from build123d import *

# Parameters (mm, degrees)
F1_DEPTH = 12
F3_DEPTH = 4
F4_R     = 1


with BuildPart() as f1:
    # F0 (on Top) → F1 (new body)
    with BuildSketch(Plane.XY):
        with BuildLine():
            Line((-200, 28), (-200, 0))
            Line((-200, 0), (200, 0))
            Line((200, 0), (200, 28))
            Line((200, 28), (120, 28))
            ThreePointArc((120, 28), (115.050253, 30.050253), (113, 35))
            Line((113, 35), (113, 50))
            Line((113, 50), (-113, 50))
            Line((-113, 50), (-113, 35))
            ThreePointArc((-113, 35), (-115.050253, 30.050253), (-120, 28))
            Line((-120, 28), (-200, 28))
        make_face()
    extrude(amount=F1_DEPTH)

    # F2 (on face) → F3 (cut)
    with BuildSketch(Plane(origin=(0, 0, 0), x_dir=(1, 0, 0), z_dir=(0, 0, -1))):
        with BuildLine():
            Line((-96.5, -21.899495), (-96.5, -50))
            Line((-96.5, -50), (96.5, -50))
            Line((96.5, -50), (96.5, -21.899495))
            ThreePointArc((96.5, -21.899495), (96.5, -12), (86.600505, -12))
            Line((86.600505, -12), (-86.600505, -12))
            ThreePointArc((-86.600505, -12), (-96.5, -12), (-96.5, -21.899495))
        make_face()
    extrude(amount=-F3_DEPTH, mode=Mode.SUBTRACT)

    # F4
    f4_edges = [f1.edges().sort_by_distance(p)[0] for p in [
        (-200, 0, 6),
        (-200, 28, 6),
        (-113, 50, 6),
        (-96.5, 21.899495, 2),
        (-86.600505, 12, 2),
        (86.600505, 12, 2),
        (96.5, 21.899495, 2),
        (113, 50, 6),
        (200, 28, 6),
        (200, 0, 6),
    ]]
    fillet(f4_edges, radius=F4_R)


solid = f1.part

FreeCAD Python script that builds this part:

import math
import FreeCAD as App
import Part
import Sketcher
Q = App.Units.Quantity


def edges_at(feature, points):
    """Names of the edges that pass closest to the given points."""
    edges = feature.Shape.Edges
    near = lambda p: min(range(len(edges)), key=lambda i: edges[i].distToShape(Part.Vertex(*p))[0])
    return sorted({f"Edge{near(p) + 1}" for p in points})

doc = App.newDocument("Part")
body = doc.addObject("PartDesign::Body", "Body")

# Sketch on XY plane
sketch1 = doc.addObject("Sketcher::SketchObject", "Sketch")
body.addObject(sketch1)
sketch1.AttachmentSupport = (doc.XY_Plane, [""])
sketch1.MapMode = "FlatFace"
sketch1.addGeometry([
    Part.LineSegment(App.Vector(-200, 28, 0), App.Vector(-200, 0, 0)),  # 0
    Part.LineSegment(App.Vector(-200, 0, 0), App.Vector(200, 0, 0)),  # 1
    Part.LineSegment(App.Vector(200, 0, 0), App.Vector(200, 28, 0)),  # 2
    Part.LineSegment(App.Vector(200, 28, 0), App.Vector(120, 28, 0)),  # 3
    Part.ArcOfCircle(Part.Circle(App.Vector(120.000002, 35.000002, 0), App.Vector(0, 0, 1), 7.000002), math.radians(-179.999987), math.radians(-90.000013)),  # 4
    Part.LineSegment(App.Vector(113, 35, 0), App.Vector(113, 50, 0)),  # 5
    Part.LineSegment(App.Vector(113, 50, 0), App.Vector(-113, 50, 0)),  # 6
    Part.LineSegment(App.Vector(-113, 50, 0), App.Vector(-113, 35, 0)),  # 7
    Part.ArcOfCircle(Part.Circle(App.Vector(-120.000002, 35.000002, 0), App.Vector(0, 0, 1), 7.000002), math.radians(-89.999987), math.radians(-0.000013)),  # 8
    Part.LineSegment(App.Vector(-120, 28, 0), App.Vector(-200, 28, 0)),  # 9
], False)
sketch1.addConstraint([
    Sketcher.Constraint("Coincident", 0, 2, 1, 1),
    Sketcher.Constraint("Coincident", 1, 2, 2, 1),
    Sketcher.Constraint("Coincident", 2, 2, 3, 1),
    Sketcher.Constraint("Tangent", 3, 2, 4, 2),
    Sketcher.Constraint("Tangent", 4, 1, 5, 1),
    Sketcher.Constraint("Coincident", 5, 2, 6, 1),
    Sketcher.Constraint("Coincident", 6, 2, 7, 1),
    Sketcher.Constraint("Tangent", 7, 2, 8, 2),
    Sketcher.Constraint("Tangent", 8, 1, 9, 1),
    Sketcher.Constraint("Coincident", 9, 2, 0, 1),
    Sketcher.Constraint("Vertical", 0),
    Sketcher.Constraint("Horizontal", 1),
    Sketcher.Constraint("Vertical", 2),
    Sketcher.Constraint("Horizontal", 3),
    Sketcher.Constraint("Vertical", 5),
    Sketcher.Constraint("Horizontal", 6),
    Sketcher.Constraint("Vertical", 7),
    Sketcher.Constraint("Horizontal", 9),
    Sketcher.Constraint("Equal", 4, 8),
    Sketcher.Constraint("Symmetric", 0, 2, 1, 2, -1, 1),
    Sketcher.Constraint("Symmetric", 4, 3, 8, 3, -2),
    Sketcher.Constraint("Radius", 4, Q("7.000002 mm")),
    Sketcher.Constraint("DistanceX", 1, 1, 1, 2, Q("400 mm")),
    Sketcher.Constraint("DistanceX", 3, 2, 3, 1, Q("80 mm")),
    Sketcher.Constraint("DistanceY", 0, 2, 0, 1, Q("28 mm")),
    Sketcher.Constraint("DistanceY", 5, 1, 5, 2, Q("15 mm")),
])
pad1 = doc.addObject("PartDesign::Pad", "Pad")
body.addObject(pad1)
pad1.Profile = sketch1
pad1.Length = 12

# Sketch on XY plane
sketch2 = doc.addObject("Sketcher::SketchObject", "Sketch001")
body.addObject(sketch2)
sketch2.AttachmentSupport = (doc.XY_Plane, [""])
sketch2.MapMode = "FlatFace"
sketch2.addGeometry([
    Part.LineSegment(App.Vector(-96.5, 21.899495, 0), App.Vector(-96.5, 50, 0)),  # 0
    Part.LineSegment(App.Vector(-96.5, 50, 0), App.Vector(96.5, 50, 0)),  # 1
    Part.LineSegment(App.Vector(96.5, 50, 0), App.Vector(96.5, 21.899495, 0)),  # 2
    Part.ArcOfCircle(Part.Circle(App.Vector(91.550252, 16.949748, 0), App.Vector(0, 0, 1), 7), math.radians(-135), math.radians(45)),  # 3
    Part.LineSegment(App.Vector(86.600505, 12, 0), App.Vector(-86.600505, 12, 0)),  # 4
    Part.ArcOfCircle(Part.Circle(App.Vector(-91.550252, 16.949748, 0), App.Vector(0, 0, 1), 7), math.radians(135), math.radians(315)),  # 5
], False)
sketch2.addConstraint([
    Sketcher.Constraint("Coincident", 0, 2, 1, 1),
    Sketcher.Constraint("Coincident", 1, 2, 2, 1),
    Sketcher.Constraint("Coincident", 2, 2, 3, 2),
    Sketcher.Constraint("Coincident", 3, 1, 4, 1),
    Sketcher.Constraint("Coincident", 4, 2, 5, 2),
    Sketcher.Constraint("Coincident", 5, 1, 0, 1),
    Sketcher.Constraint("Vertical", 0),
    Sketcher.Constraint("Horizontal", 1),
    Sketcher.Constraint("Vertical", 2),
    Sketcher.Constraint("Horizontal", 4),
    Sketcher.Constraint("Equal", 3, 5),
    Sketcher.Constraint("Symmetric", 3, 3, 5, 3, -2),
    Sketcher.Constraint("Horizontal", 2, 2, 5, 1),
    Sketcher.Constraint("Radius", 3, Q("7 mm")),
    Sketcher.Constraint("DistanceX", 1, 1, 1, 2, Q("193 mm")),
    Sketcher.Constraint("DistanceY", -1, 1, 0, 2, Q("50 mm")),
    Sketcher.Constraint("DistanceY", -1, 1, 3, 1, Q("12 mm")),
    Sketcher.Constraint("DistanceX", 4, 2, 4, 1, Q("173.20101 mm")),
    Sketcher.Constraint("DistanceX", -1, 1, 3, 3, Q("91.550252 mm")),
])
pocket1 = doc.addObject("PartDesign::Pocket", "Pocket")
body.addObject(pocket1)
pocket1.Profile = sketch2
pocket1.Length = 4
pocket1.Reversed = True
doc.recompute()

fillet = doc.addObject("PartDesign::Fillet", "Fillet")
body.addObject(fillet)
fillet.Base = (pocket1, edges_at(pocket1, [
    (-200, 0, 6),
    (-200, 28, 6),
    (-113, 50, 6),
    (-96.5, 21.899, 2),
    (-86.601, 12, 2),
    (86.601, 12, 2),
    (96.5, 21.899, 2),
    (113, 50, 6),
    (200, 28, 6),
    (200, 0, 6),
]))
fillet.Radius = 1

doc.recompute()
